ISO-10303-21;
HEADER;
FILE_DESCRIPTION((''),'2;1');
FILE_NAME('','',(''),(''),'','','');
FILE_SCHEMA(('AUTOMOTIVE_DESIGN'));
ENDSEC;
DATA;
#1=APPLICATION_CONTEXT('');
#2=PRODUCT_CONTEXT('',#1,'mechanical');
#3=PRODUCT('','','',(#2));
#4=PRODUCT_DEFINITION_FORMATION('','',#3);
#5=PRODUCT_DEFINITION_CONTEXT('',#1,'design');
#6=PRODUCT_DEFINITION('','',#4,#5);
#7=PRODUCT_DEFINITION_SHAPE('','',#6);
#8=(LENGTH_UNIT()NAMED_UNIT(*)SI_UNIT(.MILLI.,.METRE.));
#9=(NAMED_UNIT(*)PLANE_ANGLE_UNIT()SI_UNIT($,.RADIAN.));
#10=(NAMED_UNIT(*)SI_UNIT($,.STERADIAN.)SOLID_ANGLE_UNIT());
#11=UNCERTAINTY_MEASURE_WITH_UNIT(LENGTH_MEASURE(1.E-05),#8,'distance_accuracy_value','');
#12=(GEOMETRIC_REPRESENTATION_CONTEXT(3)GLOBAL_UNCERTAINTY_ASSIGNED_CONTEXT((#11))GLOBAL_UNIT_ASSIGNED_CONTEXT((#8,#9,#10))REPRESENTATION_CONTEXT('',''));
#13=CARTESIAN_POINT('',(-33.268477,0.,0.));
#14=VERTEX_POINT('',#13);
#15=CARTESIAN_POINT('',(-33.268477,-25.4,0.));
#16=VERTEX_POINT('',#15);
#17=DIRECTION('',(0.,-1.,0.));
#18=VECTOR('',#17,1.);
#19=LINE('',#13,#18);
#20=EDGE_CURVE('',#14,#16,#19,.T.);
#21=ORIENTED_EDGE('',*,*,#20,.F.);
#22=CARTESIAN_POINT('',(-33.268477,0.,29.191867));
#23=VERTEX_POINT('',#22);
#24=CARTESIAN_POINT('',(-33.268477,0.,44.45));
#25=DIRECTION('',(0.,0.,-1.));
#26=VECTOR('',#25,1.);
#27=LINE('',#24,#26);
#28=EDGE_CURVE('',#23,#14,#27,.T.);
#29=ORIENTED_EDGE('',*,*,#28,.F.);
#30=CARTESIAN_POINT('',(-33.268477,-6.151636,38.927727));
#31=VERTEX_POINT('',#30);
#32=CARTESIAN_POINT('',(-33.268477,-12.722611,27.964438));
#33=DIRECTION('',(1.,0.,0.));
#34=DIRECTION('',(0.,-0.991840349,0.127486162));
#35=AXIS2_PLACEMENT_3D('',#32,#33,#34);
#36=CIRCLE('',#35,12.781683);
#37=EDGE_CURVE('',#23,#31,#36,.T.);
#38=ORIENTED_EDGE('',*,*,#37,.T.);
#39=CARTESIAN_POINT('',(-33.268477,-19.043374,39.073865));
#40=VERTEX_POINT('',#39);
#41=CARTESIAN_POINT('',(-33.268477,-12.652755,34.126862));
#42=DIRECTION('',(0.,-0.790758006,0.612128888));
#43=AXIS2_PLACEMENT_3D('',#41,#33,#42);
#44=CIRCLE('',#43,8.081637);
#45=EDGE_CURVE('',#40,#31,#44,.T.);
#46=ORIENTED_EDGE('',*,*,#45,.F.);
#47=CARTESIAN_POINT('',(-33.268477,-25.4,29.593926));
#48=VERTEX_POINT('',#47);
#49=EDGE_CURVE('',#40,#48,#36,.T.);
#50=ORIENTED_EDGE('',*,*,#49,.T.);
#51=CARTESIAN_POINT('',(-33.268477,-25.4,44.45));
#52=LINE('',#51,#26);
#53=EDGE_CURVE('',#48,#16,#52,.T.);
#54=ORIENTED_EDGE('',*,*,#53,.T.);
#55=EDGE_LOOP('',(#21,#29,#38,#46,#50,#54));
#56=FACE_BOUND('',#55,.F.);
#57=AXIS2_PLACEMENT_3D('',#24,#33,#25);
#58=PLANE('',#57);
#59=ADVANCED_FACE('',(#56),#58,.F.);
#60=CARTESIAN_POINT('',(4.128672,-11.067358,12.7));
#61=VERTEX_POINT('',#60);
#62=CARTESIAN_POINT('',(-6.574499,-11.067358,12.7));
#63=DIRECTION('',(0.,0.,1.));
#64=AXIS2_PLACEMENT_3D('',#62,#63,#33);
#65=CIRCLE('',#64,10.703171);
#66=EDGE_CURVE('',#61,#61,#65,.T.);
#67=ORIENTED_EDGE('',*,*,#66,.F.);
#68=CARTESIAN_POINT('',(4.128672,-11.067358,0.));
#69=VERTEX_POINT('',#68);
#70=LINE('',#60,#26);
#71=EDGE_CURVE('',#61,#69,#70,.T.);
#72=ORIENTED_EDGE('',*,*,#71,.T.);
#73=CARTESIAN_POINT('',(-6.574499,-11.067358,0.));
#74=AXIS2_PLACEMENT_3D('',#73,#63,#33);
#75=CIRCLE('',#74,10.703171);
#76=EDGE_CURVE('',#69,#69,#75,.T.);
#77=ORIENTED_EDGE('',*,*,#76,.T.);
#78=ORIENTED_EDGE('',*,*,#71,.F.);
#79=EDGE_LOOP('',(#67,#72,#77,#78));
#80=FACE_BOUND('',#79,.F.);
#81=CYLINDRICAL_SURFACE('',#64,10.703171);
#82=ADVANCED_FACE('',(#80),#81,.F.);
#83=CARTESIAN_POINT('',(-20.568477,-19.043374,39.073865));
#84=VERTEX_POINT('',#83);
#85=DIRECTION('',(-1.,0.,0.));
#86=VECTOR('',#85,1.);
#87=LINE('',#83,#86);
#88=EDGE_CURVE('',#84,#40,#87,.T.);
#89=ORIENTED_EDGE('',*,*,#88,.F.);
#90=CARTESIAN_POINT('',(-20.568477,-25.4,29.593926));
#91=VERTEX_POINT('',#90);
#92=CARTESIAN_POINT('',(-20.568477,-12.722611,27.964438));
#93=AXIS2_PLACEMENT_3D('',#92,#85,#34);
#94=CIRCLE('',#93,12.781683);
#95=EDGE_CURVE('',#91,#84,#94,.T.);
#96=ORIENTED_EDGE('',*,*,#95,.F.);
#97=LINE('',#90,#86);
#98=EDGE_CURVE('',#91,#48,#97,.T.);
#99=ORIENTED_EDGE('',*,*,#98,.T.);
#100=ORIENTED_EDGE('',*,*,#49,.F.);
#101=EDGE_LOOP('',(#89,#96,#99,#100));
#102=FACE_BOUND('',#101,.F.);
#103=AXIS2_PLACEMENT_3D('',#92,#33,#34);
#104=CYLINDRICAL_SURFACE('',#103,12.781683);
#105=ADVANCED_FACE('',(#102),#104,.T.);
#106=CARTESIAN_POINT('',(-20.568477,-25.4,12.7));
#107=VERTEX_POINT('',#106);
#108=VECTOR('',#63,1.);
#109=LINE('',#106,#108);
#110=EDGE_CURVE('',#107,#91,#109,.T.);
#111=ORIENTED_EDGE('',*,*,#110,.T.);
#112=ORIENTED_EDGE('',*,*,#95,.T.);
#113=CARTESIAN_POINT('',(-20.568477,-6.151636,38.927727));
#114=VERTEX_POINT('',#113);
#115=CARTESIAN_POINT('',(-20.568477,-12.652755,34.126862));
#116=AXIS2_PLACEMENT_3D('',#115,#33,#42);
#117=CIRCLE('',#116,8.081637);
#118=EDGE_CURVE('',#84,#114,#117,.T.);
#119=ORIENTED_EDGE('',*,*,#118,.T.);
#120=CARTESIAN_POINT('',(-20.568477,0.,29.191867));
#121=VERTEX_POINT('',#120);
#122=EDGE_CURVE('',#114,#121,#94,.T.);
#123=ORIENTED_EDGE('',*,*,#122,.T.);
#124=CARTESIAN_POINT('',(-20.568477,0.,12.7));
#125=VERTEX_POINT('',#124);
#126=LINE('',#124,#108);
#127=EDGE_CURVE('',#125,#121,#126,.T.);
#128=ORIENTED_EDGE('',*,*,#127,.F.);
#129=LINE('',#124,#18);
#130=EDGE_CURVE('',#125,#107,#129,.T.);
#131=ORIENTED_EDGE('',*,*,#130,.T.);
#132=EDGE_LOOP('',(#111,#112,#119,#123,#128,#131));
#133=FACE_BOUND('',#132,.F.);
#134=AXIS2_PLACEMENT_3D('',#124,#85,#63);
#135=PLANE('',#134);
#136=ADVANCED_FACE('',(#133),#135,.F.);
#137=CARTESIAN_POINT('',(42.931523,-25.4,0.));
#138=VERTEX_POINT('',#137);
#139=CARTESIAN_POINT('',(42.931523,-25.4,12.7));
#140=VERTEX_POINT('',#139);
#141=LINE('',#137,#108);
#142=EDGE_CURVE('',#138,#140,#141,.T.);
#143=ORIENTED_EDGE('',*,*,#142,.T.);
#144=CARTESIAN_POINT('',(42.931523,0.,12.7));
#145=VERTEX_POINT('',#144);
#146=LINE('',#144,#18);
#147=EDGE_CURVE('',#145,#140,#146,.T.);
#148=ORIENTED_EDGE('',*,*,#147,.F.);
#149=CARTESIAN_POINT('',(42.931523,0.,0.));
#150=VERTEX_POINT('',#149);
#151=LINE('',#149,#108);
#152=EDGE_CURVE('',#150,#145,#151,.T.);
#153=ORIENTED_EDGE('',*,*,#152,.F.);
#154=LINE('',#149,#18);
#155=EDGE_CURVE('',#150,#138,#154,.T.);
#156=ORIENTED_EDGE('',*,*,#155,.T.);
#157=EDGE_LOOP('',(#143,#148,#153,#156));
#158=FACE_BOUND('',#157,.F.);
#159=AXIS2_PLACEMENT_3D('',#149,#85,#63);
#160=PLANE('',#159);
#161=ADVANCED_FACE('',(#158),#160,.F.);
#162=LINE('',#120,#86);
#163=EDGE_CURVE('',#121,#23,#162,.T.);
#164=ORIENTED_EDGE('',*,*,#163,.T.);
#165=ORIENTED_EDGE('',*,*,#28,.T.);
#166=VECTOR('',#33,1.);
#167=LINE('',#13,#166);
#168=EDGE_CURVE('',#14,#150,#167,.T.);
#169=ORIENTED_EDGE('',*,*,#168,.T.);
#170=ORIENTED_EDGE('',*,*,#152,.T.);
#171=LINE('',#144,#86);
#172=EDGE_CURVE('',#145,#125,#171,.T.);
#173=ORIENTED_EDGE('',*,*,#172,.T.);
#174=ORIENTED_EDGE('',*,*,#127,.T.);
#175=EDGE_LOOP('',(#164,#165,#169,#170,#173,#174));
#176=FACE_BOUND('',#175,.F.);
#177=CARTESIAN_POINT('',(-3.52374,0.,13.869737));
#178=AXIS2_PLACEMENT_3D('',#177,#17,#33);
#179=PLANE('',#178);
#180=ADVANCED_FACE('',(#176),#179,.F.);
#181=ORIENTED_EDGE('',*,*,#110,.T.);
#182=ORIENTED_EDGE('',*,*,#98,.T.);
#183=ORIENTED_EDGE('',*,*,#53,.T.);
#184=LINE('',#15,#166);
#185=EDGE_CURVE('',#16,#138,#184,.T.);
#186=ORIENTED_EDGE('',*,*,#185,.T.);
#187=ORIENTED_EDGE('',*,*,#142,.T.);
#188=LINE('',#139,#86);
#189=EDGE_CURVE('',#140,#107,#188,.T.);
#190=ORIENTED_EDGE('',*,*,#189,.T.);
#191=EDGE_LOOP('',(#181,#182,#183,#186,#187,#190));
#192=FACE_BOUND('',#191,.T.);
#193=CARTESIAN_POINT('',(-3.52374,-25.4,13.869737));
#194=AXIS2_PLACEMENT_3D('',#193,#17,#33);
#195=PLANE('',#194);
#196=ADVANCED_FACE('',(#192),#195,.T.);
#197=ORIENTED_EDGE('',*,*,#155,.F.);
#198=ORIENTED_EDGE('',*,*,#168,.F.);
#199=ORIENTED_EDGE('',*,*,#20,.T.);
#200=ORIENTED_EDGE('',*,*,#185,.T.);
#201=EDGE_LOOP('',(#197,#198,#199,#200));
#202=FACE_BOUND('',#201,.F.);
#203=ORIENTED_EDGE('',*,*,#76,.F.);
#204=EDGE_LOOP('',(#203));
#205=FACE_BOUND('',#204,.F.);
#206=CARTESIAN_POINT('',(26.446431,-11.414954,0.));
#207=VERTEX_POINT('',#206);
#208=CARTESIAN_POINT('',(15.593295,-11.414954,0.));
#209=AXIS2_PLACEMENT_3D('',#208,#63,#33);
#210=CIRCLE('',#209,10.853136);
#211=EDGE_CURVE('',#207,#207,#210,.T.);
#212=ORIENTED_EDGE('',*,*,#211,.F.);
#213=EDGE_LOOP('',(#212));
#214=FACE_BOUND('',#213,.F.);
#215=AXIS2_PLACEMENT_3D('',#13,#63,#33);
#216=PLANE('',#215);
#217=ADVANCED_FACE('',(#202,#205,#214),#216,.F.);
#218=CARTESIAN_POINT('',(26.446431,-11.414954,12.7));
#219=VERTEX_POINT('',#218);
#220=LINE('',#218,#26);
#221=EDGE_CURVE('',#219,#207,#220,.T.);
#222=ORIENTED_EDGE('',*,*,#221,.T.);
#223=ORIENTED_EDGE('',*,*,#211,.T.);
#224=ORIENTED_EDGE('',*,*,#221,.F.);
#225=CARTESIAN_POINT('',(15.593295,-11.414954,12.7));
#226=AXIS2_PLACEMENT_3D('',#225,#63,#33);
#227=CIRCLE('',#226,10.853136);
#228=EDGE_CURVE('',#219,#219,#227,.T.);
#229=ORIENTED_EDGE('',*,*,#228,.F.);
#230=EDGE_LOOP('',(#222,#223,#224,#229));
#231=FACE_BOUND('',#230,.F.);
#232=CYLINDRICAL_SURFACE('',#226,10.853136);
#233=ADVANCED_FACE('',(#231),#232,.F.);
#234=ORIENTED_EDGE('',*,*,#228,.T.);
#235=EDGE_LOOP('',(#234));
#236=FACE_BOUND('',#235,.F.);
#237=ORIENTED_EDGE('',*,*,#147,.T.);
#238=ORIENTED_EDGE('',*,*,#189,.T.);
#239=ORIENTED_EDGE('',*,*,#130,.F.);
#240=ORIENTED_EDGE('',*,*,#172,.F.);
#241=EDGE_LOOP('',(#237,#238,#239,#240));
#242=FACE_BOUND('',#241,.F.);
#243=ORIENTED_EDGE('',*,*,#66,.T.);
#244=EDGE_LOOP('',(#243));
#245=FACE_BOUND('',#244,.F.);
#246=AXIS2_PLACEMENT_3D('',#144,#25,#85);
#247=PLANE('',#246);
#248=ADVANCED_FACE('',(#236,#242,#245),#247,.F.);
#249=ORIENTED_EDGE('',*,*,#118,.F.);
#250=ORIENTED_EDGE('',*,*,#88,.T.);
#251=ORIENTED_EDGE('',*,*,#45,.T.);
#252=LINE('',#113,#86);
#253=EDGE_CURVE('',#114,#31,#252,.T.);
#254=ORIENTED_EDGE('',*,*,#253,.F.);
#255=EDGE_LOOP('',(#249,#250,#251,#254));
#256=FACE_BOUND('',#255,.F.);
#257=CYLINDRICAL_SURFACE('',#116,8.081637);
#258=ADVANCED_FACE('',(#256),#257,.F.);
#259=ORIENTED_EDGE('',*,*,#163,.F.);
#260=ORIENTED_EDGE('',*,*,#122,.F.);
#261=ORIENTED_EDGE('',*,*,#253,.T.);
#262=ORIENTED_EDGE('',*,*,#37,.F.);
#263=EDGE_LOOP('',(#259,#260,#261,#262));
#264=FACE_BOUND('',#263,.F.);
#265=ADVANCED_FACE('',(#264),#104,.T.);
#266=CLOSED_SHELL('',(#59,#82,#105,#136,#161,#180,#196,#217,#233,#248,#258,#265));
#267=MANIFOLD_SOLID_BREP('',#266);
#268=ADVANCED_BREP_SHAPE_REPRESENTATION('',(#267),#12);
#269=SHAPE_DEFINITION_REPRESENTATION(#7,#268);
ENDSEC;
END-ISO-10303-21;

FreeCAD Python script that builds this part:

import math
import FreeCAD as App
import Part
import Sketcher
from FreeCAD import Vector
Q = App.Units.Quantity

doc = App.newDocument("Part")
params = doc.addObject("Spreadsheet::Sheet", "Params")
for row, (alias, value) in enumerate([
    ("sketch1_width", "3 in"),
    ("sketch1_width2", "0.5 in"),
    ("sketch1_height", "1.75 in"),
    ("pad1_length", "1 in"),
    ("sketch2_width", "1 in"),
    ("pocket1_length", "1 in"),
    ("pocket2_length", "1 in"),
    ("pocket3_length", "1 in"),
], start=1):
    params.set(f"A{row}", alias)
    params.set(f"B{row}", "=" + value)
    params.setAlias(f"B{row}", alias)

body = doc.addObject("PartDesign::Body", "Body")

# Sketch on XZ plane
sketch1 = body.newObject("Sketcher::SketchObject", "Sketch")
sketch1.AttachmentSupport = (doc.getObject("XZ_Plane"), [""])
sketch1.MapMode = "FlatFace"
sketch1.addGeometry([
    Part.LineSegment(Vector(-20.568477, 44.45, 0), Vector(-33.268477, 44.45, 0)),  # 0
    Part.LineSegment(Vector(-33.268477, 44.45, 0), Vector(-33.268477, 0, 0)),  # 1
    Part.LineSegment(Vector(-33.268477, 0, 0), Vector(42.931523, 0, 0)),  # 2
    Part.LineSegment(Vector(42.931523, 0, 0), Vector(42.931523, 12.7, 0)),  # 3
    Part.LineSegment(Vector(42.931523, 12.7, 0), Vector(-20.568477, 12.7, 0)),  # 4
    Part.LineSegment(Vector(-20.568477, 12.7, 0), Vector(-20.568477, 44.45, 0)),  # 5
], False)
sketch1.addConstraint([
    Sketcher.Constraint("Coincident", 0, 2, 1, 1),
    Sketcher.Constraint("Coincident", 1, 2, 2, 1),
    Sketcher.Constraint("Coincident", 2, 2, 3, 1),
    Sketcher.Constraint("Coincident", 3, 2, 4, 1),
    Sketcher.Constraint("Coincident", 4, 2, 5, 1),
    Sketcher.Constraint("Coincident", 5, 2, 0, 1),
    Sketcher.Constraint("Horizontal", 0),
    Sketcher.Constraint("Vertical", 1),
    Sketcher.Constraint("Horizontal", 2),
    Sketcher.Constraint("Vertical", 3),
    Sketcher.Constraint("Horizontal", 4),
    Sketcher.Constraint("Vertical", 5),
    Sketcher.Constraint("PointOnObject", 1, 2, -1),
    Sketcher.Constraint("Equal", 0, 3),
    Sketcher.Constraint("DistanceX", 2, 1, 2, 2, Q("3 in")),
    Sketcher.Constraint("DistanceX", 0, 2, 0, 1, Q("0.5 in")),
    Sketcher.Constraint("DistanceY", 1, 2, 1, 1, Q("1.75 in")),
    Sketcher.Constraint("DistanceX", 0, 2, -1, 1, 33.268477),
])
sketch1.setExpression("Constraints[14]", "Params.sketch1_width")
sketch1.setExpression("Constraints[15]", "Params.sketch1_width2")
sketch1.setExpression("Constraints[16]", "Params.sketch1_height")
pad1 = body.newObject("PartDesign::Pad", "Pad")
pad1.Profile = sketch1
pad1.setExpression("Length", "Params.pad1_length")

# Sketch on YZ plane
sketch2 = body.newObject("Sketcher::SketchObject", "Sketch001")
sketch2.AttachmentSupport = (doc.getObject("YZ_Plane"), [""])
sketch2.MapMode = "FlatFace"
sketch2.AttachmentOffset = App.Placement(Vector(0, 0, -20.568477), App.Rotation())
sketch2.addGeometry([
    Part.ArcOfCircle(Part.Circle(Vector(-12.722611, 27.964438, 0), Vector(0, 0, 1), 12.781683), math.radians(5.51062), math.radians(172.675649)),
    Part.LineSegment(Vector(0, 29.191867, 0), Vector(0, 44.45, 0)),
    Part.LineSegment(Vector(0, 44.45, 0), Vector(-25.4, 44.45, 0)),
    Part.LineSegment(Vector(-25.4, 44.45, 0), Vector(-25.4, 29.593926, 0)),
], False)
sketch2.addConstraint([
    Sketcher.Constraint("Coincident", 0, 1, 1, 1),
    Sketcher.Constraint("Coincident", 1, 2, 2, 1),
    Sketcher.Constraint("Coincident", 2, 2, 3, 1),
    Sketcher.Constraint("Coincident", 3, 2, 0, 2),
    Sketcher.Constraint("Vertical", 1),
    Sketcher.Constraint("Horizontal", 2),
    Sketcher.Constraint("Vertical", 3),
    Sketcher.Constraint("PointOnObject", 0, 1, -2),
    Sketcher.Constraint("DistanceX", 2, 2, 2, 1, Q("1 in")),
    Sketcher.Constraint("DistanceY", -1, 1, 1, 2, Q("1.75 in")),
    Sketcher.Constraint("Radius", 0, 12.781683),
    Sketcher.Constraint("DistanceY", 1, 1, 1, 2, 15.258133),
    Sketcher.Constraint("DistanceY", 3, 2, 3, 1, 14.856074),
])
sketch2.setExpression("Constraints[8]", "Params.sketch2_width")
pocket1 = body.newObject("PartDesign::Pocket", "Pocket")
pocket1.Profile = sketch2
pocket1.setExpression("Length", "Params.pocket1_length")

# Sketch on YZ plane
sketch3 = body.newObject("Sketcher::SketchObject", "Sketch002")
sketch3.AttachmentSupport = (doc.getObject("YZ_Plane"), [""])
sketch3.MapMode = "FlatFace"
sketch3.AttachmentOffset = App.Placement(Vector(0, 0, -20.568477), App.Rotation())
sketch3.addGeometry([
    Part.ArcOfCircle(Part.Circle(Vector(-12.722611, 27.964438, 0), Vector(0, 0, 1), 12.781683), math.radians(59.063142), math.radians(119.637925)),
    Part.ArcOfCircle(Part.Circle(Vector(-12.652755, 34.126862, 0), Vector(0, 0, 1), 8.081637), math.radians(142.256405), math.radians(396.444662)),
], False)
sketch3.addConstraint([
    Sketcher.Constraint("Coincident", 0, 1, 1, 2),
    Sketcher.Constraint("Coincident", 1, 1, 0, 2),
    Sketcher.Constraint("Radius", 0, 12.781683),
    Sketcher.Constraint("Radius", 1, 8.081637),
    Sketcher.Constraint("DistanceX", 0, 3, 0, 1, Q("0.2586998 in")),
    Sketcher.Constraint("DistanceX", 0, 3, -1, 1, 12.722611),
    Sketcher.Constraint("DistanceY", -1, 1, 0, 3, 27.964438),
    Sketcher.Constraint("DistanceY", -1, 1, 1, 3, 34.126862),
])
pocket2 = body.newObject("PartDesign::Pocket", "Pocket001")
pocket2.Profile = sketch3
pocket2.setExpression("Length", "Params.pocket2_length")

# Sketch on XY plane
sketch4 = body.newObject("Sketcher::SketchObject", "Sketch003")
sketch4.AttachmentSupport = (doc.getObject("XY_Plane"), [""])
sketch4.MapMode = "FlatFace"
sketch4.AttachmentOffset = App.Placement(Vector(0, 0, 0.5 * 25.4), App.Rotation())
sketch4.addGeometry([
    Part.Circle(Vector(-6.574499, -11.067358, 0), Vector(0, 0, 1), 10.703171),
    Part.Circle(Vector(15.593295, -11.414954, 0), Vector(0, 0, 1), 10.853136),
], False)
sketch4.addConstraint([
    Sketcher.Constraint("Diameter", 0, 21.406342),
    Sketcher.Constraint("Diameter", 1, 21.706273),
    Sketcher.Constraint("DistanceX", 0, 3, -1, 1, 6.574499),
    Sketcher.Constraint("DistanceY", 0, 3, -1, 1, 11.067358),
    Sketcher.Constraint("DistanceX", -1, 1, 1, 3, 15.593295),
    Sketcher.Constraint("DistanceY", 1, 3, -1, 1, 11.414954),
])
pocket3 = body.newObject("PartDesign::Pocket", "Pocket002")
pocket3.Profile = sketch4
pocket3.setExpression("Length", "Params.pocket3_length")

doc.recompute()
